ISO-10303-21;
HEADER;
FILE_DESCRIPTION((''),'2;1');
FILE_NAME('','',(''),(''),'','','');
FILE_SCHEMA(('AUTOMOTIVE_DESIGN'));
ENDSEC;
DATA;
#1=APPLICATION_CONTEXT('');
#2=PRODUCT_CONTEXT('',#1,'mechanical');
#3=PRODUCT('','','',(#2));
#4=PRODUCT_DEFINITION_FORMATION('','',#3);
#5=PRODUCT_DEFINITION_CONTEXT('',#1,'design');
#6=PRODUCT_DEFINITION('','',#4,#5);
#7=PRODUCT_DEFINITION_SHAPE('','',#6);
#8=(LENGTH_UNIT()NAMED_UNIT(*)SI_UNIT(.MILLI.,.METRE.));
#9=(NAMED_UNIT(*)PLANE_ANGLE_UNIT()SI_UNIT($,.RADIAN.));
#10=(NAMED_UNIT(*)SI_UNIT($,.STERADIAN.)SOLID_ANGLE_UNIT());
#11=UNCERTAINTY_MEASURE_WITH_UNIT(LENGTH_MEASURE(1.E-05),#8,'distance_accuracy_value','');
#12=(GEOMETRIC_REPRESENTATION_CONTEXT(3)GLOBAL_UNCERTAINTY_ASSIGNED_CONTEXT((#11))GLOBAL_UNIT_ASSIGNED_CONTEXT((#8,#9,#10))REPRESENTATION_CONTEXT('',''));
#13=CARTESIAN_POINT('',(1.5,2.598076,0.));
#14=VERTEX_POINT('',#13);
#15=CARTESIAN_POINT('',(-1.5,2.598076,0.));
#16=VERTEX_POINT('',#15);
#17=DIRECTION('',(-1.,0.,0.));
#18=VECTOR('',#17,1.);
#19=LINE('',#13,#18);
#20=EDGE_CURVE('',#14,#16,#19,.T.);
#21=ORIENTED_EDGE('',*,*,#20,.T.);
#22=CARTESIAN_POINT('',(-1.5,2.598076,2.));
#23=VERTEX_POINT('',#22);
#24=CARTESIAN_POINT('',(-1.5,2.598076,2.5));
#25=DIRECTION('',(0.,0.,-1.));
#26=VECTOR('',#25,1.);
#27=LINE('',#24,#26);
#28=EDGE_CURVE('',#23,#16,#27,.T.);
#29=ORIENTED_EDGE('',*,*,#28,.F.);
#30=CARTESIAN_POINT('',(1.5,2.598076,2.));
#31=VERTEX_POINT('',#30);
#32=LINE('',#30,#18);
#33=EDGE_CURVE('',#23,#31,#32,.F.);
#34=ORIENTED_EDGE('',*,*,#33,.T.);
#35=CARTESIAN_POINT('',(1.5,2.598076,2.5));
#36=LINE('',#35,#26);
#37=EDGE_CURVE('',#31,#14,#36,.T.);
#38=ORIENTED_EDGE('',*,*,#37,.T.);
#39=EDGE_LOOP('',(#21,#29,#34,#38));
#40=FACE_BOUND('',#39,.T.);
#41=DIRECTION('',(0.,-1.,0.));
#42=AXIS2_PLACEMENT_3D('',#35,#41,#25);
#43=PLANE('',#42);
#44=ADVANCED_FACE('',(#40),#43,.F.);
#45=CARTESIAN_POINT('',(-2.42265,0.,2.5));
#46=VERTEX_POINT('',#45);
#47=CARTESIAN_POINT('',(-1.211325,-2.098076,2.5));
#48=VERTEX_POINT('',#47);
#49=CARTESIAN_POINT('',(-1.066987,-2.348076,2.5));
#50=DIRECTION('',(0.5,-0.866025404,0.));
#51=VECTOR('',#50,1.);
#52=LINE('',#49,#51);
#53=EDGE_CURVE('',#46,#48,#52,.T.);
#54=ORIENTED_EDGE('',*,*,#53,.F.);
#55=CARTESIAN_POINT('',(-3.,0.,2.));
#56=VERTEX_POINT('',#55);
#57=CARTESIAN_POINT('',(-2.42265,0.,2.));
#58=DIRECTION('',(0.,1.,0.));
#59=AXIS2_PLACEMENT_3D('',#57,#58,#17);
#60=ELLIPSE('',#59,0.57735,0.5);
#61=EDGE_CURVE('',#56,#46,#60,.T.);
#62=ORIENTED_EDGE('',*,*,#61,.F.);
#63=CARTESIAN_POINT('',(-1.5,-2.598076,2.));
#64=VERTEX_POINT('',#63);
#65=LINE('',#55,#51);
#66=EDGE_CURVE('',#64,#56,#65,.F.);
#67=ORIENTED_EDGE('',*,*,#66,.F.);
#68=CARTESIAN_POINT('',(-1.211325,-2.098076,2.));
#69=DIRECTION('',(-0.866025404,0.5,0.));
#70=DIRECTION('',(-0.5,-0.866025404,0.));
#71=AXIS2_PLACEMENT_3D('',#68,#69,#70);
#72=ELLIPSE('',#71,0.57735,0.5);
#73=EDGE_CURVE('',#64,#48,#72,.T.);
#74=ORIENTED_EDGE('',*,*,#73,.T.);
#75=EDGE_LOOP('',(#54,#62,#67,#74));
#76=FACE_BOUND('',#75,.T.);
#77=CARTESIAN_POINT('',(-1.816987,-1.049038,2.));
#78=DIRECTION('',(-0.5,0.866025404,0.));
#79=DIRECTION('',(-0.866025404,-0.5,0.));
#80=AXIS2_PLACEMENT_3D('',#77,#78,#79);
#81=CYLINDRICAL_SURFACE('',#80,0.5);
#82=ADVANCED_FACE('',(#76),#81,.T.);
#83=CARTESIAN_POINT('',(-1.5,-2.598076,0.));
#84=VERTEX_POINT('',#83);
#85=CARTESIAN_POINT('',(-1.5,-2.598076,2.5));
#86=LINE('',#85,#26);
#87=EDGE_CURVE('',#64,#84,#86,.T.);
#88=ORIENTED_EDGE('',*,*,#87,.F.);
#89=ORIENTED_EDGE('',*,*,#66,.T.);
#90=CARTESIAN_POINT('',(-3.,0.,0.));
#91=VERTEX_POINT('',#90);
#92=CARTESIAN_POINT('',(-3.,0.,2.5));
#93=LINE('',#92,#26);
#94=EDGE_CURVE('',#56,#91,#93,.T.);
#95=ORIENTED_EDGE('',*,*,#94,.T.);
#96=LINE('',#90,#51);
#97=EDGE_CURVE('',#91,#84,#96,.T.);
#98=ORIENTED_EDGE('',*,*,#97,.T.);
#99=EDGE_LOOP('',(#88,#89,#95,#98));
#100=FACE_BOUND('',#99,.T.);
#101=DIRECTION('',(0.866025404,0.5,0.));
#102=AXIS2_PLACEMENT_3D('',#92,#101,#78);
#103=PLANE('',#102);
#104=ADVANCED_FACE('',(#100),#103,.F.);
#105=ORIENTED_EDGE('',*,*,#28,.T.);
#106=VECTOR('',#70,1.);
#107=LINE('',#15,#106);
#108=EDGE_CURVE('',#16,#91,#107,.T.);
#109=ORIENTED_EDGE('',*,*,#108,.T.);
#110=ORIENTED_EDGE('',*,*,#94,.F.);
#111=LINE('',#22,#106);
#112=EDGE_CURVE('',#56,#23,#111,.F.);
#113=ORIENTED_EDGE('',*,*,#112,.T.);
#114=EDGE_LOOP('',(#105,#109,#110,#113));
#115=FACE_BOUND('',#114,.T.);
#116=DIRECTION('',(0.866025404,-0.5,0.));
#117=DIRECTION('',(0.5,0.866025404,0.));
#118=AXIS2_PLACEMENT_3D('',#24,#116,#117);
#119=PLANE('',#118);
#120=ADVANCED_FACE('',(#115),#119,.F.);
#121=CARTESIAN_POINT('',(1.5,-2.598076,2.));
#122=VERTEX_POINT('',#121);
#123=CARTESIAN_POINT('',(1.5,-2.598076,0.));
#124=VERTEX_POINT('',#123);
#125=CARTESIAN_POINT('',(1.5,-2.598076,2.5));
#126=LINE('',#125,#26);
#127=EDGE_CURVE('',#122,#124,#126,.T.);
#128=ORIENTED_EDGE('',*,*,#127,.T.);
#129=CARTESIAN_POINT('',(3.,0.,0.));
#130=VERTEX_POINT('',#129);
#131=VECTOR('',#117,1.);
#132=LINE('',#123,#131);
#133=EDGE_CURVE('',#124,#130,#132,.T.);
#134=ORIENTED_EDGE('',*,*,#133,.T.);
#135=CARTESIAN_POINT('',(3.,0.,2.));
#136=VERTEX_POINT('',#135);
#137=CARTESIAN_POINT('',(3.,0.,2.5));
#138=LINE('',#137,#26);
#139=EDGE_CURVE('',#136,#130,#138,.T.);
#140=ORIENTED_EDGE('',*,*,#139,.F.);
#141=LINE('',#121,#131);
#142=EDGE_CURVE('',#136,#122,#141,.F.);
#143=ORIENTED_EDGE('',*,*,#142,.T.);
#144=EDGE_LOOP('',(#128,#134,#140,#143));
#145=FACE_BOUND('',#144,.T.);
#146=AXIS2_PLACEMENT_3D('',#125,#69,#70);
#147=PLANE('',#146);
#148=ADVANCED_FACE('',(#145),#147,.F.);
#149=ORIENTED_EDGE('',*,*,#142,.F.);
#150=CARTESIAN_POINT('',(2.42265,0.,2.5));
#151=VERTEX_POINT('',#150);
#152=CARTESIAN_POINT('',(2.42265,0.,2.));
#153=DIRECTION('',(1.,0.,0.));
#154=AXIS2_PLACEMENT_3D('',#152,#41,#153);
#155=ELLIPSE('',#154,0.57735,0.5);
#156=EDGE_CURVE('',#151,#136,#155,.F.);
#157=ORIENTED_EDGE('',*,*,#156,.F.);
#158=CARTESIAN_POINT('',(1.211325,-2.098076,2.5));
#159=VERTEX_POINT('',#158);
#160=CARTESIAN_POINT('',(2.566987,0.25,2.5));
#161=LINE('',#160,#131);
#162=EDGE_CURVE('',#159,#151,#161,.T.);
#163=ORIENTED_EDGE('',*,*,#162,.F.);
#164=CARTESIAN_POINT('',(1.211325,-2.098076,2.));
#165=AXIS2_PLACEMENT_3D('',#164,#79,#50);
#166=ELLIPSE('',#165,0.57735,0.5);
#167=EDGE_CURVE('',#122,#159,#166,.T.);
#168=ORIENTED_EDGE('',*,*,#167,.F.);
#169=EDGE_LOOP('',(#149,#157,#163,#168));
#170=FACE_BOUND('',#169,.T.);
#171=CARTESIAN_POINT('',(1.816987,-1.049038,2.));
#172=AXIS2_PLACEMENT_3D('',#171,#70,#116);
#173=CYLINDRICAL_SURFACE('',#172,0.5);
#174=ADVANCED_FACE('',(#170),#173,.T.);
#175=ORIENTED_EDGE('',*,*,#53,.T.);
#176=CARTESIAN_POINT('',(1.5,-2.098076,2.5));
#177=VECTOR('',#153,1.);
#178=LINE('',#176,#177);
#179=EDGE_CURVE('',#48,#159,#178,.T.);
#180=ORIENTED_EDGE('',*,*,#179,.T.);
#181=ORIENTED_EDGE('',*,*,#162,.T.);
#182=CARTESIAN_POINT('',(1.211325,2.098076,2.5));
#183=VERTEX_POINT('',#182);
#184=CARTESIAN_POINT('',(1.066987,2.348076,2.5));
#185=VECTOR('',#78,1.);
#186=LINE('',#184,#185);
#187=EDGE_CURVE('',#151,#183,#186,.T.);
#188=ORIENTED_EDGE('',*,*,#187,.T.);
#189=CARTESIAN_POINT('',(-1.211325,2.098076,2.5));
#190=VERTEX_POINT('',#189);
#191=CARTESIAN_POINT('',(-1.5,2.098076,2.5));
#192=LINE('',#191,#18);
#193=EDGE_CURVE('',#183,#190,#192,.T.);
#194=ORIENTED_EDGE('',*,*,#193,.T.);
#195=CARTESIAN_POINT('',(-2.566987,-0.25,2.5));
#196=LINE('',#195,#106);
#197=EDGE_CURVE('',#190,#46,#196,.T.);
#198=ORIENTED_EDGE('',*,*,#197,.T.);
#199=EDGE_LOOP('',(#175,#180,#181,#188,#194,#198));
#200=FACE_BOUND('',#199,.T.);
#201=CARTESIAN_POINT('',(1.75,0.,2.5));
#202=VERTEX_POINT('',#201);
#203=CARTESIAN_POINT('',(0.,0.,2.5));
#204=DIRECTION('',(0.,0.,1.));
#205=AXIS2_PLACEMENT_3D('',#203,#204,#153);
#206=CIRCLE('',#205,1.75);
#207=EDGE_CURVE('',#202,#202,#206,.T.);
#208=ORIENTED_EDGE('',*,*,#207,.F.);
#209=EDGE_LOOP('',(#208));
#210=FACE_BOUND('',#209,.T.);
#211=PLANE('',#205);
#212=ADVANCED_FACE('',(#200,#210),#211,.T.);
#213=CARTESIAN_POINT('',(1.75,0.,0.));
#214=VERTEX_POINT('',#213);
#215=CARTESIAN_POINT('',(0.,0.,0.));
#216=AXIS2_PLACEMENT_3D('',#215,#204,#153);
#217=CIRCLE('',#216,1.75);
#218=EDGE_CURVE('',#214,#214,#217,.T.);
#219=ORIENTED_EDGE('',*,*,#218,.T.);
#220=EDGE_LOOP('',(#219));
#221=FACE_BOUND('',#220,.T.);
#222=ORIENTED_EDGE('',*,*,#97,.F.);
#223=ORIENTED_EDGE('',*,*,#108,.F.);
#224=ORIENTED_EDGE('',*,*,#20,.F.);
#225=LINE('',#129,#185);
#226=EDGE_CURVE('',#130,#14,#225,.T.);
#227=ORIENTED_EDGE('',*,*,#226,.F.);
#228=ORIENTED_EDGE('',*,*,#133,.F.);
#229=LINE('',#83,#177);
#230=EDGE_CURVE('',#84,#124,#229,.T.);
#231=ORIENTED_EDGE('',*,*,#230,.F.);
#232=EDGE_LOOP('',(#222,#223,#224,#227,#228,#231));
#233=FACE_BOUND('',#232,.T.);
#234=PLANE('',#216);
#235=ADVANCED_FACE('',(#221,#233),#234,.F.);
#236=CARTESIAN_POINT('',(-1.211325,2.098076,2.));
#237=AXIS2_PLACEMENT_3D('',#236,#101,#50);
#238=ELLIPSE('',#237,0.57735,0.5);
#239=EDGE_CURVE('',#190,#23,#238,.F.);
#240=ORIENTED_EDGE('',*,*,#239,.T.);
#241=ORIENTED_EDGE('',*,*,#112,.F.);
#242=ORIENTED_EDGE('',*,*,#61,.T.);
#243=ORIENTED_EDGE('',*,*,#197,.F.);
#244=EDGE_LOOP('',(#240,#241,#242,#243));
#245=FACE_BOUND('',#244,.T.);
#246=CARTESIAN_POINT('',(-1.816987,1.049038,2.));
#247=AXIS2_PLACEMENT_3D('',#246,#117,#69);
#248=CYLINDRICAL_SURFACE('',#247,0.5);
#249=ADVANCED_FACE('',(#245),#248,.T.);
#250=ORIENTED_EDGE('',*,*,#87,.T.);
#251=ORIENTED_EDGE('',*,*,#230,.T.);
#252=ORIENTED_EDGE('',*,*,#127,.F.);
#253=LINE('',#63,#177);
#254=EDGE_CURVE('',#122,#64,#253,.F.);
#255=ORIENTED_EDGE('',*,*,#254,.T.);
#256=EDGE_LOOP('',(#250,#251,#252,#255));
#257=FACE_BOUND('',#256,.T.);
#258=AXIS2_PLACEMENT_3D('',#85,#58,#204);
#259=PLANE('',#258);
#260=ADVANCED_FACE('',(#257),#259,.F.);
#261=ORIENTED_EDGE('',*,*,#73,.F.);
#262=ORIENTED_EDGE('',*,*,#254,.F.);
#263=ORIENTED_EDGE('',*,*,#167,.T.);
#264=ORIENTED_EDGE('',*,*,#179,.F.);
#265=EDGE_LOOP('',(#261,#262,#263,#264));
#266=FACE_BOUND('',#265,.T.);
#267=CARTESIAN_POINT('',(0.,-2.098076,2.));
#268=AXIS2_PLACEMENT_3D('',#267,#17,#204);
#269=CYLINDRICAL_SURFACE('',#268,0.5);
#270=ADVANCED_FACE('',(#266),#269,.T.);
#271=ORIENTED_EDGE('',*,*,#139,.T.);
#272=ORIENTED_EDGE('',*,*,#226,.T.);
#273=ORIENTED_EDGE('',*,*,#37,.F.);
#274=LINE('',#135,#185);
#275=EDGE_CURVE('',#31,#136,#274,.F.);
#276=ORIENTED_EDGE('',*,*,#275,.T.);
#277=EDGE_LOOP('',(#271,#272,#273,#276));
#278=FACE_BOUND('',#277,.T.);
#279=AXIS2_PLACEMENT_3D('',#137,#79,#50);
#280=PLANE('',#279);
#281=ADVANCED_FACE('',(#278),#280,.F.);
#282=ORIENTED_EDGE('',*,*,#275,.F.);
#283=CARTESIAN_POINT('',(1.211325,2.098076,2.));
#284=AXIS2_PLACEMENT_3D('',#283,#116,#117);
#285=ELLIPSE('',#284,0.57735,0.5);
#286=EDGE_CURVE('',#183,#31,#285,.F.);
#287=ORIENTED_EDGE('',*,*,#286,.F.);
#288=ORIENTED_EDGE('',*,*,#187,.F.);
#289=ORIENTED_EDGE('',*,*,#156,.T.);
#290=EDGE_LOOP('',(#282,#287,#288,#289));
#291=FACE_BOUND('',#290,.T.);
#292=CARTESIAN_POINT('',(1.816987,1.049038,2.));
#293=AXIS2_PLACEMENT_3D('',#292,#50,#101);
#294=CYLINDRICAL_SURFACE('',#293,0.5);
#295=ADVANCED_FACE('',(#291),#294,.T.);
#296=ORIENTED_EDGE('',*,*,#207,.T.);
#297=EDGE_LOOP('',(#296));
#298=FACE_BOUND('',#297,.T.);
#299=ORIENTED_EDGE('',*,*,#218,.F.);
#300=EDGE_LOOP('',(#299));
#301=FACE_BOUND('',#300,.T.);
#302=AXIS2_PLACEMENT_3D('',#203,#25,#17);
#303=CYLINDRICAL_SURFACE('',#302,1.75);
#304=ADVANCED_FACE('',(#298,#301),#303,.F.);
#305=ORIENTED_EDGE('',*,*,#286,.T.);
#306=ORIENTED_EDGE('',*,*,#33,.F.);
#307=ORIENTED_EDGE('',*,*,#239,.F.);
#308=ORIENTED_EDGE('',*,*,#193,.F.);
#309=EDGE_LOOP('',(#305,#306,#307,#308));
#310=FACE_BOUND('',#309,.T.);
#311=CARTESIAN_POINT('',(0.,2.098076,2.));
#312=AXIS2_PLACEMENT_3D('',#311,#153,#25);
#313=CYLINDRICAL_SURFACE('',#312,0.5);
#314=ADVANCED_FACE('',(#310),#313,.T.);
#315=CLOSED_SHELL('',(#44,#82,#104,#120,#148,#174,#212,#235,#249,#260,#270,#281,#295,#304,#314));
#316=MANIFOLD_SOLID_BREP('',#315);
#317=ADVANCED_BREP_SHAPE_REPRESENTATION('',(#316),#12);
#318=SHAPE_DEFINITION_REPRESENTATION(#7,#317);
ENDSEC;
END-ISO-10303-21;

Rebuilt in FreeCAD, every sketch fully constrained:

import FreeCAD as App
import Part
import Sketcher
Q = App.Units.Quantity


def edges_at(feature, points):
    """Names of the edges that pass closest to the given points."""
    edges = feature.Shape.Edges
    near = lambda p: min(range(len(edges)), key=lambda i: edges[i].distToShape(Part.Vertex(*p))[0])
    return sorted({f"Edge{near(p) + 1}" for p in points})


def add_polygon(sketch, points):
    """Adds a closed chain of lines whose ends are joined by coincident constraints."""
    first, n = sketch.GeometryCount, len(points)
    for a, b in zip(points, points[1:] + points[:1]):
        sketch.addGeometry(Part.LineSegment(App.Vector(*a, 0), App.Vector(*b, 0)), False)
    for i in range(n):
        sketch.addConstraint(Sketcher.Constraint("Coincident", first + i, 2, first + (i + 1) % n, 1))

doc = App.newDocument("Part")
params = doc.addObject("Spreadsheet::Sheet", "Params")
for row, (alias, value) in enumerate([
    ("sketch1_diameter", "3.5 mm"),
    ("sketch1_width", "3 mm"),
    ("sketch1_length", "3 mm"),
    ("pad1_length", "2.5 mm"),
    ("fillet_radius", "0.5 mm"),
], start=1):
    params.set(f"A{row}", alias)
    params.set(f"B{row}", "=" + value)
    params.setAlias(f"B{row}", alias)

body = doc.addObject("PartDesign::Body", "Body")

# Sketch on XY plane
sketch1 = body.newObject("Sketcher::SketchObject", "Sketch")
sketch1.AttachmentSupport = (doc.getObject("XY_Plane"), [""])
sketch1.MapMode = "FlatFace"
add_polygon(sketch1, [(3, 0), (1.5, 2.6), (-1.5, 2.6), (-3, 0), (-1.5, -2.6), (1.5, -2.6)])  # lines 0-5
sketch1.addGeometry(Part.Circle(App.Vector(0, 0, 0), App.Vector(0, 0, 1), 1.8), False)  # 6
sketch1.addConstraint(Sketcher.Constraint("Horizontal", 1))
sketch1.addConstraint(Sketcher.Constraint("Horizontal", 4))
sketch1.addConstraint(Sketcher.Constraint("Coincident", 6, 3, -1, 1))
sketch1.addConstraint(Sketcher.Constraint("Symmetric", 0, 2, 3, 2, -1, 1))
sketch1.addConstraint(Sketcher.Constraint("Symmetric", 2, 2, 5, 2, -1, 1))
sketch1.addConstraint(Sketcher.Constraint("PointOnObject", 2, 2, -1))
sketch1.addConstraint(Sketcher.Constraint("Parallel", 2, 5))
sketch1.addConstraint(Sketcher.Constraint("Vertical", 1, 2, 3, 2))
sketch1.addConstraint(Sketcher.Constraint("Diameter", 6, Q("3.5 mm")))
sketch1.addConstraint(Sketcher.Constraint("DistanceX", 1, 2, 1, 1, Q("3 mm")))
sketch1.addConstraint(Sketcher.Constraint("Angle", 0, Q("120 deg")))
sketch1.addConstraint(Sketcher.Constraint("Distance", 0, Q("3 mm")))
sketch1.setExpression("Constraints[14]", "Params.sketch1_diameter")
sketch1.setExpression("Constraints[15]", "Params.sketch1_width")
sketch1.setExpression("Constraints[17]", "Params.sketch1_length")
pad1 = body.newObject("PartDesign::Pad", "Pad")
pad1.Profile = sketch1
pad1.setExpression("Length", "Params.pad1_length")
doc.recompute()

fillet = body.newObject("PartDesign::Fillet", "Fillet")
fillet.Base = (pad1, edges_at(pad1, [
    (0, 2.598, 2.5),
    (-2.25, 1.299, 2.5),
    (-2.25, -1.299, 2.5),
    (0, -2.598, 2.5),
    (2.25, -1.299, 2.5),
    (2.25, 1.299, 2.5),
]))
fillet.setExpression("Radius", "Params.fillet_radius")

doc.recompute()
